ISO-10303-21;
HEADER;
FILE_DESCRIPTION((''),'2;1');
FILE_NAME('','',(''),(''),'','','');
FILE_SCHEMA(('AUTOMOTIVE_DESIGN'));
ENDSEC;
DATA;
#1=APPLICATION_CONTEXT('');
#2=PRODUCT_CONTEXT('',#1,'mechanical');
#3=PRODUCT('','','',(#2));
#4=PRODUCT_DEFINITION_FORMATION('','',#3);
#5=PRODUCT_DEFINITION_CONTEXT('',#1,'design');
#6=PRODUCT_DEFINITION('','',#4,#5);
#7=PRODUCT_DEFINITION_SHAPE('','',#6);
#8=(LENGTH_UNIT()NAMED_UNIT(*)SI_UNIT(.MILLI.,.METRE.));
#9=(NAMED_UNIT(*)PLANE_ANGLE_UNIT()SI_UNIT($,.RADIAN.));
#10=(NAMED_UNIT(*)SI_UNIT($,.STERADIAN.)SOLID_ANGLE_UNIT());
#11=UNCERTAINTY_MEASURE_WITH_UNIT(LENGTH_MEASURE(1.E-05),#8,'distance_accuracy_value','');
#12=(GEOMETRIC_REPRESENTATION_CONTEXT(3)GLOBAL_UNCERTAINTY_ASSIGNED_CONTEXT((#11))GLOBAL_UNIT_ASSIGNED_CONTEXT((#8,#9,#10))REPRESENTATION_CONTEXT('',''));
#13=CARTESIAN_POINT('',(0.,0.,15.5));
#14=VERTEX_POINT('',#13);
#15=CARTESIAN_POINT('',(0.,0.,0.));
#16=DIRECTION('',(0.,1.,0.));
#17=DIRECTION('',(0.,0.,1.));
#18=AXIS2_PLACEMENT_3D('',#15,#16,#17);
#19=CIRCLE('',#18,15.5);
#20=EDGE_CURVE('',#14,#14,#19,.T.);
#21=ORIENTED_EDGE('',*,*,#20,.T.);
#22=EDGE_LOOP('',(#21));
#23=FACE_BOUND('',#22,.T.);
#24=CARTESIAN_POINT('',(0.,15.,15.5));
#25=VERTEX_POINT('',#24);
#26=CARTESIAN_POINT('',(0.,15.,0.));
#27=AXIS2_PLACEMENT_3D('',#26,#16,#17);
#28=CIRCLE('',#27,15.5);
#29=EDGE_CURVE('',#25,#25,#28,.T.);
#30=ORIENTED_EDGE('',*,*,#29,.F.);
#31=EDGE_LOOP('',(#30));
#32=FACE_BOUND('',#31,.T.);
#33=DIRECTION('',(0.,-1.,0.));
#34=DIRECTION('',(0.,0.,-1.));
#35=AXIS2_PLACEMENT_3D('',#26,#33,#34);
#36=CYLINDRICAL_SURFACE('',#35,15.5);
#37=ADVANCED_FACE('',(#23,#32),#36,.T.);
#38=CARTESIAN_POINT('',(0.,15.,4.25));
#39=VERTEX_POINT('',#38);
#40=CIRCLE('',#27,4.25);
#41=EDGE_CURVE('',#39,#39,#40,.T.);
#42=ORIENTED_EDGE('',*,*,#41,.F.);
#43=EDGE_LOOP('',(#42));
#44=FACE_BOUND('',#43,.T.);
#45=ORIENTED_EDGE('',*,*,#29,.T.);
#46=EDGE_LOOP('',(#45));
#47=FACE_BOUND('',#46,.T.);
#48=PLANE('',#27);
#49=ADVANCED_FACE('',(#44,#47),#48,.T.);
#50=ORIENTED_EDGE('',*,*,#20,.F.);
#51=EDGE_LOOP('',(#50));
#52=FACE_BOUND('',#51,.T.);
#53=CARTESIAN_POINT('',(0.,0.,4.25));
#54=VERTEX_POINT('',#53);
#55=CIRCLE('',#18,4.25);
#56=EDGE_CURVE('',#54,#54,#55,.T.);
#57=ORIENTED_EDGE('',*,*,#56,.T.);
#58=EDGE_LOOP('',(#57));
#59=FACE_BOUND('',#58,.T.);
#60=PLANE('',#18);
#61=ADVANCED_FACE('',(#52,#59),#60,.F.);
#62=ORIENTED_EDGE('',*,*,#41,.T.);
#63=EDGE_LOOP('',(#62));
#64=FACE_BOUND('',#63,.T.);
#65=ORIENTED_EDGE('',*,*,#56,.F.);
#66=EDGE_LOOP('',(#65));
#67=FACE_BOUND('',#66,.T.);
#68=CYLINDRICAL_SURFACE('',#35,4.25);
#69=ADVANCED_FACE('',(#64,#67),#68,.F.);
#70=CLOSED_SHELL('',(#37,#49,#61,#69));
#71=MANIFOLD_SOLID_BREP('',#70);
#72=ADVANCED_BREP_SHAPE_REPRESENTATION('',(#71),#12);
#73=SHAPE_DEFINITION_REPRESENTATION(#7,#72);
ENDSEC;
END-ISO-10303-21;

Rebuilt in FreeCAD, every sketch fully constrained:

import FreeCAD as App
import Part
import Sketcher

doc = App.newDocument("Part")
body = doc.addObject("PartDesign::Body", "Body")

# Sketch on XZ plane
sketch1 = body.newObject("Sketcher::SketchObject", "Sketch")
sketch1.AttachmentSupport = (doc.getObject("XZ_Plane"), [""])
sketch1.MapMode = "FlatFace"
sketch1.addGeometry(Part.Circle(App.Vector(0, 0, 0), App.Vector(0, 0, 1), 15.5), False)
sketch1.addGeometry(Part.Circle(App.Vector(0, 0, 0), App.Vector(0, 0, 1), 4.2), False)
sketch1.addConstraint(Sketcher.Constraint("Coincident", 0, 3, -1, 1))
sketch1.addConstraint(Sketcher.Constraint("Coincident", 1, 3, -1, 1))
sketch1.addConstraint(Sketcher.Constraint("Diameter", 0, 31.0))
sketch1.addConstraint(Sketcher.Constraint("Diameter", 1, 8.5))
pad1 = body.newObject("PartDesign::Pad", "Pad")
pad1.Profile = sketch1
pad1.Length = 15
pad1.Reversed = True

doc.recompute()
